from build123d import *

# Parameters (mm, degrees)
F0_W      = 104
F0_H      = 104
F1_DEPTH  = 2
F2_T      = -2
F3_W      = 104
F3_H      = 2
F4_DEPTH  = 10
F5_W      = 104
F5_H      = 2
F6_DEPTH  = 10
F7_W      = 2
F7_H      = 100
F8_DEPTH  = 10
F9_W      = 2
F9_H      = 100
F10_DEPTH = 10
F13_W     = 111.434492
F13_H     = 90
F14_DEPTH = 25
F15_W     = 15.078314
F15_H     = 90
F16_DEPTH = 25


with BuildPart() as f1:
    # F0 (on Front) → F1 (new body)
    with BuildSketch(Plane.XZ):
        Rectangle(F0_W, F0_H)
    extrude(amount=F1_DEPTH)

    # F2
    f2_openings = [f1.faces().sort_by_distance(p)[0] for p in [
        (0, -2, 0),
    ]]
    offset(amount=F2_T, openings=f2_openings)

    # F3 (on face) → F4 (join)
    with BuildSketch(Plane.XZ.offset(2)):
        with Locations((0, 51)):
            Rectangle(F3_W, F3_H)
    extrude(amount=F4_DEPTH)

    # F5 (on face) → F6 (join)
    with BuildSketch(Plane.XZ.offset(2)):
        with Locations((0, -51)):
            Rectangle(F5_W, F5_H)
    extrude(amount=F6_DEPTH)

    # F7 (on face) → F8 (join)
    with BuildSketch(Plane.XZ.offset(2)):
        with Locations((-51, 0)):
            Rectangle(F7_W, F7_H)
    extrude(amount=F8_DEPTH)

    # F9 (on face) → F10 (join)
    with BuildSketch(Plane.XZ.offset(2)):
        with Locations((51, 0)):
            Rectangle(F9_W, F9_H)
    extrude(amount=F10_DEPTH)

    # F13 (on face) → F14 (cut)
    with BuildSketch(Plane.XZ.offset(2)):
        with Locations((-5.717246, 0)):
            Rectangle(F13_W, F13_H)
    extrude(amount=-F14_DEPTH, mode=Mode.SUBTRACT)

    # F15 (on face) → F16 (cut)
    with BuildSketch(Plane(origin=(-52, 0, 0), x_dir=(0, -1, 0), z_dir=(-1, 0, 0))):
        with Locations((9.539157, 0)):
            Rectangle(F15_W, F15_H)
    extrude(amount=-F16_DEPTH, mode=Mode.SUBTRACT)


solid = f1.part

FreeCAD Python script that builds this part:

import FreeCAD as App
import Part
import Sketcher
Q = App.Units.Quantity


def faces_at(feature, points):
    """Names of the faces that lie closest to the given points."""
    faces = feature.Shape.Faces
    near = lambda p: min(range(len(faces)), key=lambda i: faces[i].distToShape(Part.Vertex(*p))[0])
    return sorted({f"Face{near(p) + 1}" for p in points})

doc = App.newDocument("Part")
body = doc.addObject("PartDesign::Body", "Body")

# Sketch on XZ plane
sketch1 = body.newObject("Sketcher::SketchObject", "Sketch")
sketch1.AttachmentSupport = (doc.getObject("XZ_Plane"), [""])
sketch1.MapMode = "FlatFace"
sketch1.addGeometry([
    Part.LineSegment(App.Vector(-52, 52, 0), App.Vector(-52, -52, 0)),
    Part.LineSegment(App.Vector(-52, -52, 0), App.Vector(52, -52, 0)),
    Part.LineSegment(App.Vector(52, -52, 0), App.Vector(52, 52, 0)),
    Part.LineSegment(App.Vector(52, 52, 0), App.Vector(-52, 52, 0)),
], False)
sketch1.addConstraint([
    Sketcher.Constraint("Coincident", 0, 2, 1, 1),
    Sketcher.Constraint("Coincident", 1, 2, 2, 1),
    Sketcher.Constraint("Coincident", 2, 2, 3, 1),
    Sketcher.Constraint("Coincident", 3, 2, 0, 1),
    Sketcher.Constraint("Vertical", 0),
    Sketcher.Constraint("Horizontal", 1),
    Sketcher.Constraint("Vertical", 2),
    Sketcher.Constraint("Horizontal", 3),
    Sketcher.Constraint("Symmetric", 0, 2, 2, 2, -1, 1),
    Sketcher.Constraint("Equal", 3, 0),
    Sketcher.Constraint("DistanceX", 1, 1, 1, 2, Q("104 mm")),
])
pad1 = body.newObject("PartDesign::Pad", "Pad")
pad1.Profile = sketch1
pad1.Length = 2
doc.recompute()

thickness = body.newObject("PartDesign::Thickness", "Thickness")
thickness.Base = (pad1, faces_at(pad1, [(0, -2, 0)]))
thickness.Value = 2
thickness.Reversed = True
thickness.Join = "Arc"

# Sketch on XZ plane
sketch2 = body.newObject("Sketcher::SketchObject", "Sketch001")
sketch2.AttachmentSupport = (doc.getObject("XZ_Plane"), [""])
sketch2.MapMode = "FlatFace"
sketch2.AttachmentOffset = App.Placement(App.Vector(0, 0, 2), App.Rotation())
sketch2.addGeometry([
    Part.LineSegment(App.Vector(-52, 52, 0), App.Vector(-52, 50, 0)),
    Part.LineSegment(App.Vector(-52, 50, 0), App.Vector(52, 50, 0)),
    Part.LineSegment(App.Vector(52, 50, 0), App.Vector(52, 52, 0)),
    Part.LineSegment(App.Vector(52, 52, 0), App.Vector(-52, 52, 0)),
], False)
sketch2.addConstraint([
    Sketcher.Constraint("Coincident", 0, 2, 1, 1),
    Sketcher.Constraint("Coincident", 1, 2, 2, 1),
    Sketcher.Constraint("Coincident", 2, 2, 3, 1),
    Sketcher.Constraint("Coincident", 3, 2, 0, 1),
    Sketcher.Constraint("Vertical", 0),
    Sketcher.Constraint("Horizontal", 1),
    Sketcher.Constraint("Vertical", 2),
    Sketcher.Constraint("Horizontal", 3),
    Sketcher.Constraint("DistanceX", 1, 1, 1, 2, Q("104 mm")),
    Sketcher.Constraint("DistanceY", 0, 2, 0, 1, Q("2 mm")),
    Sketcher.Constraint("DistanceX", 0, 2, -1, 1, Q("52 mm")),
    Sketcher.Constraint("DistanceY", -1, 1, 0, 2, Q("50 mm")),
])
pad2 = body.newObject("PartDesign::Pad", "Pad001")
pad2.Profile = sketch2
pad2.Length = 10

# Sketch on XZ plane
sketch3 = body.newObject("Sketcher::SketchObject", "Sketch002")
sketch3.AttachmentSupport = (doc.getObject("XZ_Plane"), [""])
sketch3.MapMode = "FlatFace"
sketch3.AttachmentOffset = App.Placement(App.Vector(0, 0, 2), App.Rotation())
sketch3.addGeometry([
    Part.LineSegment(App.Vector(-52, -50, 0), App.Vector(-52, -52, 0)),
    Part.LineSegment(App.Vector(-52, -52, 0), App.Vector(52, -52, 0)),
    Part.LineSegment(App.Vector(52, -52, 0), App.Vector(52, -50, 0)),
    Part.LineSegment(App.Vector(52, -50, 0), App.Vector(-52, -50, 0)),
], False)
sketch3.addConstraint([
    Sketcher.Constraint("Coincident", 0, 2, 1, 1),
    Sketcher.Constraint("Coincident", 1, 2, 2, 1),
    Sketcher.Constraint("Coincident", 2, 2, 3, 1),
    Sketcher.Constraint("Coincident", 3, 2, 0, 1),
    Sketcher.Constraint("Vertical", 0),
    Sketcher.Constraint("Horizontal", 1),
    Sketcher.Constraint("Vertical", 2),
    Sketcher.Constraint("Horizontal", 3),
    Sketcher.Constraint("DistanceX", 1, 1, 1, 2, Q("104 mm")),
    Sketcher.Constraint("DistanceY", 0, 2, 0, 1, Q("2 mm")),
    Sketcher.Constraint("DistanceX", 0, 2, -1, 1, Q("52 mm")),
    Sketcher.Constraint("DistanceY", 0, 2, -1, 1, Q("52 mm")),
])
pad3 = body.newObject("PartDesign::Pad", "Pad002")
pad3.Profile = sketch3
pad3.Length = 10

# Sketch on XZ plane
sketch4 = body.newObject("Sketcher::SketchObject", "Sketch003")
sketch4.AttachmentSupport = (doc.getObject("XZ_Plane"), [""])
sketch4.MapMode = "FlatFace"
sketch4.AttachmentOffset = App.Placement(App.Vector(0, 0, 2), App.Rotation())
sketch4.addGeometry([
    Part.LineSegment(App.Vector(-52, 50, 0), App.Vector(-52, -50, 0)),
    Part.LineSegment(App.Vector(-52, -50, 0), App.Vector(-50, -50, 0)),
    Part.LineSegment(App.Vector(-50, -50, 0), App.Vector(-50, 50, 0)),
    Part.LineSegment(App.Vector(-50, 50, 0), App.Vector(-52, 50, 0)),
], False)
sketch4.addConstraint([
    Sketcher.Constraint("Coincident", 0, 2, 1, 1),
    Sketcher.Constraint("Coincident", 1, 2, 2, 1),
    Sketcher.Constraint("Coincident", 2, 2, 3, 1),
    Sketcher.Constraint("Coincident", 3, 2, 0, 1),
    Sketcher.Constraint("Vertical", 0),
    Sketcher.Constraint("Horizontal", 1),
    Sketcher.Constraint("Vertical", 2),
    Sketcher.Constraint("Horizontal", 3),
    Sketcher.Constraint("DistanceX", 1, 1, 1, 2, Q("2 mm")),
    Sketcher.Constraint("DistanceY", 0, 2, 0, 1, Q("100 mm")),
    Sketcher.Constraint("DistanceX", 0, 2, -1, 1, Q("52 mm")),
    Sketcher.Constraint("DistanceY", 0, 2, -1, 1, Q("50 mm")),
])
pad4 = body.newObject("PartDesign::Pad", "Pad003")
pad4.Profile = sketch4
pad4.Length = 10

# Sketch on XZ plane
sketch5 = body.newObject("Sketcher::SketchObject", "Sketch004")
sketch5.AttachmentSupport = (doc.getObject("XZ_Plane"), [""])
sketch5.MapMode = "FlatFace"
sketch5.AttachmentOffset = App.Placement(App.Vector(0, 0, 2), App.Rotation())
sketch5.addGeometry([
    Part.LineSegment(App.Vector(50, 50, 0), App.Vector(50, -50, 0)),
    Part.LineSegment(App.Vector(50, -50, 0), App.Vector(52, -50, 0)),
    Part.LineSegment(App.Vector(52, -50, 0), App.Vector(52, 50, 0)),
    Part.LineSegment(App.Vector(52, 50, 0), App.Vector(50, 50, 0)),
], False)
sketch5.addConstraint([
    Sketcher.Constraint("Coincident", 0, 2, 1, 1),
    Sketcher.Constraint("Coincident", 1, 2, 2, 1),
    Sketcher.Constraint("Coincident", 2, 2, 3, 1),
    Sketcher.Constraint("Coincident", 3, 2, 0, 1),
    Sketcher.Constraint("Vertical", 0),
    Sketcher.Constraint("Horizontal", 1),
    Sketcher.Constraint("Vertical", 2),
    Sketcher.Constraint("Horizontal", 3),
    Sketcher.Constraint("DistanceX", 1, 1, 1, 2, Q("2 mm")),
    Sketcher.Constraint("DistanceY", 0, 2, 0, 1, Q("100 mm")),
    Sketcher.Constraint("DistanceX", -1, 1, 0, 2, Q("50 mm")),
    Sketcher.Constraint("DistanceY", 0, 2, -1, 1, Q("50 mm")),
])
pad5 = body.newObject("PartDesign::Pad", "Pad004")
pad5.Profile = sketch5
pad5.Length = 10

# Sketch on XZ plane
sketch6 = body.newObject("Sketcher::SketchObject", "Sketch005")
sketch6.AttachmentSupport = (doc.getObject("XZ_Plane"), [""])
sketch6.MapMode = "FlatFace"
sketch6.AttachmentOffset = App.Placement(App.Vector(0, 0, 2), App.Rotation())
sketch6.addGeometry([
    Part.LineSegment(App.Vector(-61.434492, 45, 0), App.Vector(-61.434492, -45, 0)),
    Part.LineSegment(App.Vector(-61.434492, -45, 0), App.Vector(50, -45, 0)),
    Part.LineSegment(App.Vector(50, -45, 0), App.Vector(50, 45, 0)),
    Part.LineSegment(App.Vector(50, 45, 0), App.Vector(-61.434492, 45, 0)),
], False)
sketch6.addConstraint([
    Sketcher.Constraint("Coincident", 0, 2, 1, 1),
    Sketcher.Constraint("Coincident", 1, 2, 2, 1),
    Sketcher.Constraint("Coincident", 2, 2, 3, 1),
    Sketcher.Constraint("Coincident", 3, 2, 0, 1),
    Sketcher.Constraint("Vertical", 0),
    Sketcher.Constraint("Horizontal", 1),
    Sketcher.Constraint("Vertical", 2),
    Sketcher.Constraint("Horizontal", 3),
    Sketcher.Constraint("DistanceY", 0, 2, 0, 1, Q("90 mm")),
    Sketcher.Constraint("DistanceY", 0, 2, -1, 1, Q("45 mm")),
    Sketcher.Constraint("DistanceX", -1, 1, 1, 2, Q("50 mm")),
    Sketcher.Constraint("DistanceX", 1, 1, 1, 2, Q("111.434492 mm")),
])
pocket1 = body.newObject("PartDesign::Pocket", "Pocket")
pocket1.Profile = sketch6
pocket1.Length = 25

# Sketch on YZ plane
sketch7 = body.newObject("Sketcher::SketchObject", "Sketch006")
sketch7.AttachmentSupport = (doc.getObject("YZ_Plane"), [""])
sketch7.MapMode = "FlatFace"
sketch7.AttachmentOffset = App.Placement(App.Vector(0, 0, -52), App.Rotation())
sketch7.addGeometry([
    Part.LineSegment(App.Vector(-2, 45, 0), App.Vector(-2, -45, 0)),
    Part.LineSegment(App.Vector(-2, -45, 0), App.Vector(-17.078314, -45, 0)),
    Part.LineSegment(App.Vector(-17.078314, -45, 0), App.Vector(-17.078314, 45, 0)),
    Part.LineSegment(App.Vector(-17.078314, 45, 0), App.Vector(-2, 45, 0)),
], False)
sketch7.addConstraint([
    Sketcher.Constraint("Coincident", 0, 2, 1, 1),
    Sketcher.Constraint("Coincident", 1, 2, 2, 1),
    Sketcher.Constraint("Coincident", 2, 2, 3, 1),
    Sketcher.Constraint("Coincident", 3, 2, 0, 1),
    Sketcher.Constraint("Vertical", 0),
    Sketcher.Constraint("Horizontal", 1),
    Sketcher.Constraint("Vertical", 2),
    Sketcher.Constraint("Horizontal", 3),
    Sketcher.Constraint("DistanceY", 0, 2, 0, 1, Q("90 mm")),
    Sketcher.Constraint("DistanceX", 0, 2, -1, 1, Q("2 mm")),
    Sketcher.Constraint("DistanceY", 0, 2, -1, 1, Q("45 mm")),
    Sketcher.Constraint("DistanceX", 1, 2, 1, 1, Q("15.078314 mm")),
])
pocket2 = body.newObject("PartDesign::Pocket", "Pocket001")
pocket2.Profile = sketch7
pocket2.Length = 25
pocket2.Reversed = True

doc.recompute()
